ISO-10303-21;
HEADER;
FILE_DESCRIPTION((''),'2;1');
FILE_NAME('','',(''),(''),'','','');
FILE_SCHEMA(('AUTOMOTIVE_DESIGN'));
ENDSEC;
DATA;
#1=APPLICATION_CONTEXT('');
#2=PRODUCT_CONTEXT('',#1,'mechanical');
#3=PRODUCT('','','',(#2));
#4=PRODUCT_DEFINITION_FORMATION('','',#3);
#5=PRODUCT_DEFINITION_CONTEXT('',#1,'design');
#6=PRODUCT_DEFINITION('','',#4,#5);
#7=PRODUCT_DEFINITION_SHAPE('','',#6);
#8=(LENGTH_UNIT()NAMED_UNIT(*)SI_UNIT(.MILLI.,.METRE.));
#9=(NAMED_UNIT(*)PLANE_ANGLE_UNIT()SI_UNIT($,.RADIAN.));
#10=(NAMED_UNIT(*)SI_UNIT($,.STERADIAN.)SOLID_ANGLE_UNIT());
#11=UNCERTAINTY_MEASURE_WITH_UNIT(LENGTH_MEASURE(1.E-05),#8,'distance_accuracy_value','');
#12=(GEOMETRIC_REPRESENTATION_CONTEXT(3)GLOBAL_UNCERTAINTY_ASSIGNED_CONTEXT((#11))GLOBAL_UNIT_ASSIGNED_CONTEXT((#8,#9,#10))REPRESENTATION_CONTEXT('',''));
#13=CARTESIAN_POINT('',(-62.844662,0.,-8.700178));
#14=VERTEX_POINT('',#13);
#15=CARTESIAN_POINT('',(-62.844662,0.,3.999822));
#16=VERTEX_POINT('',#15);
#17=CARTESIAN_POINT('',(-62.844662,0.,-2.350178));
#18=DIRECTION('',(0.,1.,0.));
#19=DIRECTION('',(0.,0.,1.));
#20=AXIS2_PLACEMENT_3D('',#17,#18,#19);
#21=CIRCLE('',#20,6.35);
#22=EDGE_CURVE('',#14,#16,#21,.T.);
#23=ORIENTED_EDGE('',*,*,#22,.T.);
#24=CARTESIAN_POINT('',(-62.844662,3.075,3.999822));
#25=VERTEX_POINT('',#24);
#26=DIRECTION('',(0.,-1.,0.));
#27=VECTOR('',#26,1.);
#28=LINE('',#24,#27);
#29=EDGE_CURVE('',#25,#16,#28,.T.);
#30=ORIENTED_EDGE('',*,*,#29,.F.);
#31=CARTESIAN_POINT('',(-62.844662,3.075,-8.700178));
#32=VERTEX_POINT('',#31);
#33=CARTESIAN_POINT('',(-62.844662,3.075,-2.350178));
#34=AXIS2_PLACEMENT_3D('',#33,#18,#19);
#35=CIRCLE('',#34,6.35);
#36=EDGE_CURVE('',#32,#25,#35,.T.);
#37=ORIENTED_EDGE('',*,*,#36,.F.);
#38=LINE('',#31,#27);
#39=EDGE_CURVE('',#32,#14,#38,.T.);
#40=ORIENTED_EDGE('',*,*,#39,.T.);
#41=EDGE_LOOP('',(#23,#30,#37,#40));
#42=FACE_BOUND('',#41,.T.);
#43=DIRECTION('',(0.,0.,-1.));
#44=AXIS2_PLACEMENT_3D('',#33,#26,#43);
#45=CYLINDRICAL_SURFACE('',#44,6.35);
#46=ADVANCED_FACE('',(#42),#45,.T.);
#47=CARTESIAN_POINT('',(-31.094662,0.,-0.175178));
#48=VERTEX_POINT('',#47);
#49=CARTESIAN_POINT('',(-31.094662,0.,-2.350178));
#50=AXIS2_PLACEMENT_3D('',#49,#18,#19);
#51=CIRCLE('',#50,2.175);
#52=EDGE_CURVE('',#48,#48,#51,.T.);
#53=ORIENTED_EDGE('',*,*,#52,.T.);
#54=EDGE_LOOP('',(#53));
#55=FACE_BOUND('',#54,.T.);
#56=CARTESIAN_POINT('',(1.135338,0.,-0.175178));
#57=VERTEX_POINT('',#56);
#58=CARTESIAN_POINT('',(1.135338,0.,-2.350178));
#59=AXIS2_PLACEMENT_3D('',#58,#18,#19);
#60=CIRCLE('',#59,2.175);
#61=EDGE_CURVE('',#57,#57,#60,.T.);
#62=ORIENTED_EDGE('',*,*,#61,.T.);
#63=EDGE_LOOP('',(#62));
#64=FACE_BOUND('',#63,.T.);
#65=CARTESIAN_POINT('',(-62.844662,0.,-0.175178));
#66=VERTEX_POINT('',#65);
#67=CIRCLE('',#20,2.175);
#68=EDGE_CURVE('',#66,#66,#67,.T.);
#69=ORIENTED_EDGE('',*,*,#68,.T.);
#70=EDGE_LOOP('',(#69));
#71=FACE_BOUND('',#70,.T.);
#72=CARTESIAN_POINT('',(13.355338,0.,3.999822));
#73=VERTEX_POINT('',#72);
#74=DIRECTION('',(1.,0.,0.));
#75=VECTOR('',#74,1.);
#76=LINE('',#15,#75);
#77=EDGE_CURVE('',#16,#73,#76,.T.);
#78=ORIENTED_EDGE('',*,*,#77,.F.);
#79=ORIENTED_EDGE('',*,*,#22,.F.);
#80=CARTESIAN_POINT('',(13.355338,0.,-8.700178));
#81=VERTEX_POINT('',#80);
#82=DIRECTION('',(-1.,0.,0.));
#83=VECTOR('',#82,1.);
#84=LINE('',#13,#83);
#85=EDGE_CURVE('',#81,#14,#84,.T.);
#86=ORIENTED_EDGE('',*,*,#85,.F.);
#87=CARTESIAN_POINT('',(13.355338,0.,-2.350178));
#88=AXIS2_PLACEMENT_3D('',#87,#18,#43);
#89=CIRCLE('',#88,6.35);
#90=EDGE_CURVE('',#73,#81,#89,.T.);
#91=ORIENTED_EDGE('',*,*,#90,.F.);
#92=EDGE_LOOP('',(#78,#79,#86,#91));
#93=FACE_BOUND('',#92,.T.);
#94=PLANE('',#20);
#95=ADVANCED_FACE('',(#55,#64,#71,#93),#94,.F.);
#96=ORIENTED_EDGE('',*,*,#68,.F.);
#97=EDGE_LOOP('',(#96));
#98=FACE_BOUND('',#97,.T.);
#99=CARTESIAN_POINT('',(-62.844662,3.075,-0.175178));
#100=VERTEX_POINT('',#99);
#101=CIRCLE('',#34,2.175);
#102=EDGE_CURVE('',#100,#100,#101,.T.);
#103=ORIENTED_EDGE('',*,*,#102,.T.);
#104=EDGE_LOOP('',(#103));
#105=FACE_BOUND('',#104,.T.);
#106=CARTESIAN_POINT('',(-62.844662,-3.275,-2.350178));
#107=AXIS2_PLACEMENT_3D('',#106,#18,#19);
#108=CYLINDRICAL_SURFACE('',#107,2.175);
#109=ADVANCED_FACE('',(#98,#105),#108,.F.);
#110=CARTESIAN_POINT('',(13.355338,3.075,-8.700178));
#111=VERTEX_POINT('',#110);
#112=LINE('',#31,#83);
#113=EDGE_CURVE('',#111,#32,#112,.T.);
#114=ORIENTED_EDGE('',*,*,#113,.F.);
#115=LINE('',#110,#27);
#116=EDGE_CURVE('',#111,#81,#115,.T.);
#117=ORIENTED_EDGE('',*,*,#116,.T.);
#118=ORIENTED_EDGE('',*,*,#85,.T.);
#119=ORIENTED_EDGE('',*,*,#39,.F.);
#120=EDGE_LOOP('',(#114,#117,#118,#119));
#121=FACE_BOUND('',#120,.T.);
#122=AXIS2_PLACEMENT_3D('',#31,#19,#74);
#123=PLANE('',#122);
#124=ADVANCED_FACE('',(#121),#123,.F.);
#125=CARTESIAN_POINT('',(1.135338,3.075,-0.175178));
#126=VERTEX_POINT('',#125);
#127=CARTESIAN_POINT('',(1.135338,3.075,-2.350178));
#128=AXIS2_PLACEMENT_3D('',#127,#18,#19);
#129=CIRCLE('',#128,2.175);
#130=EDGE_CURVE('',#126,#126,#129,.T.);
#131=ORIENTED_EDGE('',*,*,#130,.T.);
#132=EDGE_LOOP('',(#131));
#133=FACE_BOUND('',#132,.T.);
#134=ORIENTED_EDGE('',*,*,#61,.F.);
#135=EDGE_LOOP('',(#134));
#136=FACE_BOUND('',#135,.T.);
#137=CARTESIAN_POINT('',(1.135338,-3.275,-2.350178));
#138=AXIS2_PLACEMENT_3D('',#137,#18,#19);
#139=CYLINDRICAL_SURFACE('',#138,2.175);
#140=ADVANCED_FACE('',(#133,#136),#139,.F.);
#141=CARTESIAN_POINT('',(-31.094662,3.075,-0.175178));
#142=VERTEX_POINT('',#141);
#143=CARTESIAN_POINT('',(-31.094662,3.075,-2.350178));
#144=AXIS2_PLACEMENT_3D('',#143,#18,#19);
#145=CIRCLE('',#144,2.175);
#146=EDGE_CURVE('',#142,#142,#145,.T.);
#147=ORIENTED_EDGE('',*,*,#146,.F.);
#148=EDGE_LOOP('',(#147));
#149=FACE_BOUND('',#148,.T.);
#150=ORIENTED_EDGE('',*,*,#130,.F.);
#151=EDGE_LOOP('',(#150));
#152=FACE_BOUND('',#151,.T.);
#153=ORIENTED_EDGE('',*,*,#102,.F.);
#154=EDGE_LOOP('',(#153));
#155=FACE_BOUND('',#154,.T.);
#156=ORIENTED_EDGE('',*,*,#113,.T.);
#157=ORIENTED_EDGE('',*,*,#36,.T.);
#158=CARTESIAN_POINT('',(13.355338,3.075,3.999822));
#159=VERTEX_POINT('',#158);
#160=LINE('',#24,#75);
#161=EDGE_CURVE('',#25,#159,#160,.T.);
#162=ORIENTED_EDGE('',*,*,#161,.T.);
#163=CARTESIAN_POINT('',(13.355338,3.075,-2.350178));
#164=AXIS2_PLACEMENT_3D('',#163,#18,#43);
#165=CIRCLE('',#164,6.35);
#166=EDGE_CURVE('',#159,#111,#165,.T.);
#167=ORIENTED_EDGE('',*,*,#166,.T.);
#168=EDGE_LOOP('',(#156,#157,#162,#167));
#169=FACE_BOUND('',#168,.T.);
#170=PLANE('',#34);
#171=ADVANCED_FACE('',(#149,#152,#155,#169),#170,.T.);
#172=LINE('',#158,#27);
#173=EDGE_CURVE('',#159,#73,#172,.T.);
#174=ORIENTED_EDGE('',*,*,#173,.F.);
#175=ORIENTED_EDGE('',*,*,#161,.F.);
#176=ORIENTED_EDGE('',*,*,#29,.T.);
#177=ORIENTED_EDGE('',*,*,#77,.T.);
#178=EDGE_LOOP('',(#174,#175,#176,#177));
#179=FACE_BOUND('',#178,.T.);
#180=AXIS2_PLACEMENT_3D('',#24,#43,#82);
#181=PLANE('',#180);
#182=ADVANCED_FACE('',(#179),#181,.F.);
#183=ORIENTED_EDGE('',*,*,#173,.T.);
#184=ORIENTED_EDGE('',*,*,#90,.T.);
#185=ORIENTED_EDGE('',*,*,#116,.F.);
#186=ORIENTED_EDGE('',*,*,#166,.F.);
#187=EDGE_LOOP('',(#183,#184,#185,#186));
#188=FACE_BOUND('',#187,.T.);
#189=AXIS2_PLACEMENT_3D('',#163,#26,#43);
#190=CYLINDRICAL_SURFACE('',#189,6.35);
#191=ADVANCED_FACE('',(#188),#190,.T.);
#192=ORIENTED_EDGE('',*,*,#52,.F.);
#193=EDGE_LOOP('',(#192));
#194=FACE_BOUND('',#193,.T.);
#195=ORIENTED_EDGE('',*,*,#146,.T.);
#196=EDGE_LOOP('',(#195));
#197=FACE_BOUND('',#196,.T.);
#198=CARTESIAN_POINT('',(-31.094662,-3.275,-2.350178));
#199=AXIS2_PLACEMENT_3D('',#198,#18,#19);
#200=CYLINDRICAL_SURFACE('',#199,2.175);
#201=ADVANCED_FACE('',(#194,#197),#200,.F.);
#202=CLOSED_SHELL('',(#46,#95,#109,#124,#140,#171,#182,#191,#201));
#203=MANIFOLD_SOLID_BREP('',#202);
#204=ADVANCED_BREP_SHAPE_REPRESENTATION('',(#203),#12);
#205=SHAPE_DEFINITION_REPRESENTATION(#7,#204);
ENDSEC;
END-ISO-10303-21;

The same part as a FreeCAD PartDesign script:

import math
import FreeCAD as App
import Part
import Sketcher

V = App.Vector
Q = App.Units.Quantity

doc = App.newDocument("Part")
body = doc.addObject("PartDesign::Body", "Body")

sketch1 = body.newObject("Sketcher::SketchObject", "Sketch")
sketch1.AttachmentSupport = (doc.getObject("XZ_Plane"), [""])
sketch1.MapMode = "FlatFace"
sketch1.addGeometry(Part.LineSegment(V(13, -9, 0), V(-63, -9, 0)), False)
sketch1.addGeometry(Part.ArcOfCircle(Part.Circle(V(-63, -2, 0), V(0, 0, 1), 6), math.radians(90), math.radians(270)), False)
sketch1.addGeometry(Part.LineSegment(V(-63, 4, 0), V(13, 4, 0)), False)
sketch1.addGeometry(Part.ArcOfCircle(Part.Circle(V(13, -2, 0), V(0, 0, 1), 6), math.radians(-90), math.radians(90)), False)
sketch1.addConstraint(Sketcher.Constraint("Tangent", 0, 2, 1, 2))
sketch1.addConstraint(Sketcher.Constraint("Tangent", 1, 1, 2, 1))
sketch1.addConstraint(Sketcher.Constraint("Tangent", 2, 2, 3, 2))
sketch1.addConstraint(Sketcher.Constraint("Tangent", 3, 1, 0, 1))
sketch1.addConstraint(Sketcher.Constraint("Horizontal", 0))
sketch1.addConstraint(Sketcher.Constraint("Horizontal", 2))
sketch1.addConstraint(Sketcher.Constraint("DistanceX", 0, 2, 0, 1, Q("3 in")))
sketch1.addConstraint(Sketcher.Constraint("Radius", 1, Q("0.25 in")))
sketch1.addConstraint(Sketcher.Constraint("DistanceX", 1, 3, -1, 1, 62.844662))
sketch1.addConstraint(Sketcher.Constraint("DistanceY", 1, 3, -1, 1, 2.350178))
pad1 = body.newObject("PartDesign::Pad", "Pad")
pad1.Profile = sketch1
pad1.Length = 3.075
pad1.Reversed = True

sketch2 = body.newObject("Sketcher::SketchObject", "Sketch001")
sketch2.AttachmentSupport = (doc.getObject("XZ_Plane"), [""])
sketch2.MapMode = "FlatFace"
sketch2.AttachmentOffset = App.Placement(V(0, 0, -3.075), App.Rotation())
sketch2.addGeometry(Part.Circle(V(-62.8, -2.4, 0), V(0, 0, 1), 2.2), False)
sketch2.addGeometry(Part.Circle(V(-31.1, -2.4, 0), V(0, 0, 1), 2.2), False)
sketch2.addGeometry(Part.Circle(V(1.1, -2.4, 0), V(0, 0, 1), 2.2), False)
sketch2.addConstraint(Sketcher.Constraint("Equal", 0, 1))
sketch2.addConstraint(Sketcher.Constraint("Equal", 1, 2))
sketch2.addConstraint(Sketcher.Constraint("Horizontal", 0, 3, 1, 3))
sketch2.addConstraint(Sketcher.Constraint("Horizontal", 1, 3, 2, 3))
sketch2.addConstraint(Sketcher.Constraint("Diameter", 0, 4.35))
sketch2.addConstraint(Sketcher.Constraint("DistanceX", 0, 3, 1, 3, Q("1.25 in")))
sketch2.addConstraint(Sketcher.Constraint("DistanceX", 1, 3, 2, 3, 32.23))
sketch2.addConstraint(Sketcher.Constraint("DistanceX", 0, 3, -1, 1, 62.844662))
sketch2.addConstraint(Sketcher.Constraint("DistanceY", 0, 3, -1, 1, 2.350178))
pocket1 = body.newObject("PartDesign::Pocket", "Pocket")
pocket1.Profile = sketch2
pocket1.Length = Q("0.25 in")
pocket1.Reversed = True

doc.recompute()
